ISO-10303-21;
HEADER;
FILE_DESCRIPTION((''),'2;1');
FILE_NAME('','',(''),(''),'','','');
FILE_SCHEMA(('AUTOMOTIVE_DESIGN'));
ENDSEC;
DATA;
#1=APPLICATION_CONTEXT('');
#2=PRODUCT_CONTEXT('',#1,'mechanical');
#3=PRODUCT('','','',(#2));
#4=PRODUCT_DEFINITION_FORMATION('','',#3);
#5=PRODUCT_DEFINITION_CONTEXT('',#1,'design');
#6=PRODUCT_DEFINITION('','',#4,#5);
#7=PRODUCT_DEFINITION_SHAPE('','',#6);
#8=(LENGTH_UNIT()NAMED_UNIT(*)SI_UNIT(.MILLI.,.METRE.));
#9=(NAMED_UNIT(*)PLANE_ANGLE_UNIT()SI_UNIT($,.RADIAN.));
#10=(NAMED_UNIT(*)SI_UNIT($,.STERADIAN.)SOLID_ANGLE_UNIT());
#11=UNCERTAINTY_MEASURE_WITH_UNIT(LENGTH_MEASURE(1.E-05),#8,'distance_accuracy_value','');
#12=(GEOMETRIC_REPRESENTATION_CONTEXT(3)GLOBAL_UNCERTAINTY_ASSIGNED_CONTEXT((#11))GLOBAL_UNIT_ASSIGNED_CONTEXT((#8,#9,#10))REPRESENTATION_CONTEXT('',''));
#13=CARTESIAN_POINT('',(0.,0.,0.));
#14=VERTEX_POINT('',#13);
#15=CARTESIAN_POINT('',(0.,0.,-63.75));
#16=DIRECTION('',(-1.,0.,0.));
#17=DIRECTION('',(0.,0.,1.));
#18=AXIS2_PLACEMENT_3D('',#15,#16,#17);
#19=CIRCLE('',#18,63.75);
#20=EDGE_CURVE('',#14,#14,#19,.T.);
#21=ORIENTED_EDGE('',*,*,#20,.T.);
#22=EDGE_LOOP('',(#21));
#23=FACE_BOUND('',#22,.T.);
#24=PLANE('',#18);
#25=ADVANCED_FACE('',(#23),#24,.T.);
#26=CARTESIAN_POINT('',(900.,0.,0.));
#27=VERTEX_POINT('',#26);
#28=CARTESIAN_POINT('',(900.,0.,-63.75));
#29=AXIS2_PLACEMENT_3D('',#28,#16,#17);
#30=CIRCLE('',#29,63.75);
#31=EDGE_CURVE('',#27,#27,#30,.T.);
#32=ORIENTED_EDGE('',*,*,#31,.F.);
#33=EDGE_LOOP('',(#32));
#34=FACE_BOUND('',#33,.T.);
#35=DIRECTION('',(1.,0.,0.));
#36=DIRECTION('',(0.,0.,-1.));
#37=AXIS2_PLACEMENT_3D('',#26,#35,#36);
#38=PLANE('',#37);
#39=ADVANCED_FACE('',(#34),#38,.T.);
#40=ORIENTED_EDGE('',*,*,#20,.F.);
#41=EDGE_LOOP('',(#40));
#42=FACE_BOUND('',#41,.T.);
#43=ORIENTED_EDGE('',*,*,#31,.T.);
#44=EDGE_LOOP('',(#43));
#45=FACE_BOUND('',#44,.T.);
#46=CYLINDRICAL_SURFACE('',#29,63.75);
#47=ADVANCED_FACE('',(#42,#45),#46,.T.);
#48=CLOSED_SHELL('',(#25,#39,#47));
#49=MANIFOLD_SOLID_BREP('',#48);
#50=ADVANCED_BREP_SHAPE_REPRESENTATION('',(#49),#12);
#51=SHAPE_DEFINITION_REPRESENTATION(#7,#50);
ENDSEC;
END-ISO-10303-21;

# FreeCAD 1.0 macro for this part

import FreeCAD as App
import Part
import Sketcher

V = App.Vector

doc = App.newDocument("Part")
body = doc.addObject("PartDesign::Body", "Body")

# Sketch on XZ plane
sketch1 = body.newObject("Sketcher::SketchObject", "Sketch")
sketch1.AttachmentSupport = (doc.getObject("XZ_Plane"), [""])
sketch1.MapMode = "FlatFace"
sketch1.addGeometry([
    Part.LineSegment(V(0, -64, 0), V(0, 0, 0)),
    Part.LineSegment(V(0, 0, 0), V(900, 0, 0)),
    Part.LineSegment(V(900, 0, 0), V(900, -64, 0)),
    Part.LineSegment(V(900, -64, 0), V(0, -64, 0)),
], False)
sketch1.addGeometry(Part.LineSegment(V(900, -64, 0), V(0, -64, 0)), True)  # axis
sketch1.addConstraint([
    Sketcher.Constraint("Coincident", 0, 2, 1, 1),
    Sketcher.Constraint("Coincident", 1, 2, 2, 1),
    Sketcher.Constraint("Coincident", 2, 2, 3, 1),
    Sketcher.Constraint("Coincident", 3, 2, 0, 1),
    Sketcher.Constraint("Vertical", 0),
    Sketcher.Constraint("Horizontal", 1),
    Sketcher.Constraint("Vertical", 2),
    Sketcher.Constraint("Horizontal", 3),
    Sketcher.Constraint("Horizontal", 4),
    Sketcher.Constraint("Coincident", 0, 2, -1, 1),
    Sketcher.Constraint("Coincident", 4, 1, 2, 2),
    Sketcher.Constraint("PointOnObject", 4, 2, -2),
    Sketcher.Constraint("DistanceX", 1, 1, 1, 2, 900.0),
    Sketcher.Constraint("DistanceY", 0, 1, 0, 2, 63.75),
])
revolution = body.newObject("PartDesign::Revolution", "Revolution")
revolution.Profile = sketch1
revolution.ReferenceAxis = (sketch1, ["Axis0"])
revolution.Angle = 360

doc.recompute()
